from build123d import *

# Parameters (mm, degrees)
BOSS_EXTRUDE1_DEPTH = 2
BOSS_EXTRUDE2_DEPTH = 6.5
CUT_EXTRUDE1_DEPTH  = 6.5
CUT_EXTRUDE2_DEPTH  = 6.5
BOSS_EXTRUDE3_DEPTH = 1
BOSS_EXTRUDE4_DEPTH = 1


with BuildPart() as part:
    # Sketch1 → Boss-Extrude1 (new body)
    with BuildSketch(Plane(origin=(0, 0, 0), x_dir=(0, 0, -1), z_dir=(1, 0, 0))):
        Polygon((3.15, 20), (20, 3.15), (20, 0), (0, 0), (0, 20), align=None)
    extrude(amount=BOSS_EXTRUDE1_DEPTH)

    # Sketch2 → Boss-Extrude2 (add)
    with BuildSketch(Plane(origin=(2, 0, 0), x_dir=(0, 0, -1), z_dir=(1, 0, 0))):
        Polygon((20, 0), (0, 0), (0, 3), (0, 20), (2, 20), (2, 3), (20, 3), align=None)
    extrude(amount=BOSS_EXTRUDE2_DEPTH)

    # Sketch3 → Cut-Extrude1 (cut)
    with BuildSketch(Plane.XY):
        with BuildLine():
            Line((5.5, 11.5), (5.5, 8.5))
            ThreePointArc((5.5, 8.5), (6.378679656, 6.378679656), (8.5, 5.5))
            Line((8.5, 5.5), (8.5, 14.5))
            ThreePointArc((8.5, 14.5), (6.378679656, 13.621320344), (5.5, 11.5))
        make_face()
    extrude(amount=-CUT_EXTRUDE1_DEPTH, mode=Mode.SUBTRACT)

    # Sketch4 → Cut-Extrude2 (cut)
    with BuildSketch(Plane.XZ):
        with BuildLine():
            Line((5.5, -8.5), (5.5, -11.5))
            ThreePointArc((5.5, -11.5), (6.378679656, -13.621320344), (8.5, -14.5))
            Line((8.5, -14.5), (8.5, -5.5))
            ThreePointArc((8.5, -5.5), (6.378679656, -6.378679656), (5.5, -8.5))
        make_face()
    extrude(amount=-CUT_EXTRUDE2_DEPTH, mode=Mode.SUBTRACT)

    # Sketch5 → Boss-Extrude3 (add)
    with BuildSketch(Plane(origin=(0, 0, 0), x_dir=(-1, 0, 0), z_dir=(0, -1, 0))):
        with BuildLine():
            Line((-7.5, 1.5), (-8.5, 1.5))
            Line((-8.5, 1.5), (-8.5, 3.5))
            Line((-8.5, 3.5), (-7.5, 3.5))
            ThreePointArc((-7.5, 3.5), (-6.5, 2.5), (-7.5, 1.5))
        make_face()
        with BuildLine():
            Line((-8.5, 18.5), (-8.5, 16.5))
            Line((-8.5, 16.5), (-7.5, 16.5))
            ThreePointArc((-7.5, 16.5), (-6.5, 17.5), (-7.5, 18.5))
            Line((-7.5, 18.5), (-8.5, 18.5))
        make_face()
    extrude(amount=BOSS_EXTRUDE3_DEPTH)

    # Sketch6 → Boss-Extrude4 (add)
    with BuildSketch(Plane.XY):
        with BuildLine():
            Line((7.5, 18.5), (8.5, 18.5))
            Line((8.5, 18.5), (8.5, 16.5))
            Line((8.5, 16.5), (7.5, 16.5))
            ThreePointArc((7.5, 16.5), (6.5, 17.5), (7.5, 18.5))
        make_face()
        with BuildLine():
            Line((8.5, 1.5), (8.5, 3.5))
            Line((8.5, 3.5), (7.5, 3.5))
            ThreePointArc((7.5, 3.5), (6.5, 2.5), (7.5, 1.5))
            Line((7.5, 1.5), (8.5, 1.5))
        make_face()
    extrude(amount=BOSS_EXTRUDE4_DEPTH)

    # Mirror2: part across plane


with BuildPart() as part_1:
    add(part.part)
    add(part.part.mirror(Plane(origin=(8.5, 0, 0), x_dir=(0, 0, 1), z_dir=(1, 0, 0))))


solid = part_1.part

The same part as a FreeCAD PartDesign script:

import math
import FreeCAD as App
import Part
import Sketcher

doc = App.newDocument("Part")
params = doc.addObject("Spreadsheet::Sheet", "Params")
for row, (alias, value) in enumerate([
    ("sketch1_width", "20 mm"),
    ("sketch1_width2", "3.15 mm"),
    ("pad1_length", "2 mm"),
    ("sketch2_width", "3 mm"),
    ("sketch2_width2", "17 mm"),
    ("sketch2_height", "18 mm"),
    ("pad2_length", "6.5 mm"),
    ("sketch3_radius", "3 mm"),
    ("sketch3_height", "3 mm"),
    ("pocket1_length", "6.5 mm"),
    ("sketch4_radius", "3 mm"),
    ("sketch4_height", "3 mm"),
    ("pocket2_length", "6.5 mm"),
    ("sketch5_radius", "1 mm"),
    ("sketch5_width", "1 mm"),
    ("pad3_length", "1 mm"),
    ("sketch6_radius", "1 mm"),
    ("sketch6_width", "1 mm"),
    ("pad4_length", "1 mm"),
], start=1):
    params.set(f"A{row}", alias)
    params.set(f"B{row}", "=" + value)
    params.setAlias(f"B{row}", alias)

body = doc.addObject("PartDesign::Body", "Body")

# Sketch on YZ plane
sketch1 = body.newObject("Sketcher::SketchObject", "Sketch")
sketch1.AttachmentSupport = (doc.getObject("YZ_Plane"), [""])
sketch1.MapMode = "FlatFace"
sketch1.addGeometry([
    Part.LineSegment(App.Vector(3.1, -20, 0), App.Vector(20, -3.1, 0)),  # 0
    Part.LineSegment(App.Vector(20, -3.1, 0), App.Vector(20, 0, 0)),  # 1
    Part.LineSegment(App.Vector(20, 0, 0), App.Vector(0, 0, 0)),  # 2
    Part.LineSegment(App.Vector(0, 0, 0), App.Vector(0, -20, 0)),  # 3
    Part.LineSegment(App.Vector(0, -20, 0), App.Vector(3.1, -20, 0)),  # 4
], False)
sketch1.addConstraint([
    Sketcher.Constraint("Coincident", 0, 2, 1, 1),
    Sketcher.Constraint("Coincident", 1, 2, 2, 1),
    Sketcher.Constraint("Coincident", 2, 2, 3, 1),
    Sketcher.Constraint("Coincident", 3, 2, 4, 1),
    Sketcher.Constraint("Coincident", 4, 2, 0, 1),
    Sketcher.Constraint("Vertical", 1),
    Sketcher.Constraint("Horizontal", 2),
    Sketcher.Constraint("Vertical", 3),
    Sketcher.Constraint("Horizontal", 4),
    Sketcher.Constraint("Coincident", 2, 2, -1, 1),
    Sketcher.Constraint("Equal", 4, 1),
    Sketcher.Constraint("Equal", 2, 3),
    Sketcher.Constraint("DistanceX", 2, 2, 2, 1, 20.0),
    Sketcher.Constraint("DistanceX", 4, 1, 4, 2, 3.15),
])
sketch1.setExpression("Constraints[12]", "Params.sketch1_width")
sketch1.setExpression("Constraints[13]", "Params.sketch1_width2")
pad1 = body.newObject("PartDesign::Pad", "Pad")
pad1.Profile = sketch1
pad1.setExpression("Length", "Params.pad1_length")

# Sketch on YZ plane
sketch2 = body.newObject("Sketcher::SketchObject", "Sketch001")
sketch2.AttachmentSupport = (doc.getObject("YZ_Plane"), [""])
sketch2.MapMode = "FlatFace"
sketch2.AttachmentOffset = App.Placement(App.Vector(0, 0, 2), App.Rotation())
sketch2.addGeometry([
    Part.LineSegment(App.Vector(0, 0, 0), App.Vector(0, -20, 0)),  # 0
    Part.LineSegment(App.Vector(0, -20, 0), App.Vector(3, -20, 0)),  # 1
    Part.LineSegment(App.Vector(3, -20, 0), App.Vector(3, -2, 0)),  # 2
    Part.LineSegment(App.Vector(3, -2, 0), App.Vector(20, -2, 0)),  # 3
    Part.LineSegment(App.Vector(20, -2, 0), App.Vector(20, 0, 0)),  # 4
    Part.LineSegment(App.Vector(20, 0, 0), App.Vector(0, 0, 0)),  # 5
], False)
sketch2.addConstraint([
    Sketcher.Constraint("Coincident", 0, 2, 1, 1),
    Sketcher.Constraint("Coincident", 1, 2, 2, 1),
    Sketcher.Constraint("Coincident", 2, 2, 3, 1),
    Sketcher.Constraint("Coincident", 3, 2, 4, 1),
    Sketcher.Constraint("Coincident", 4, 2, 5, 1),
    Sketcher.Constraint("Coincident", 5, 2, 0, 1),
    Sketcher.Constraint("Vertical", 0),
    Sketcher.Constraint("Horizontal", 1),
    Sketcher.Constraint("Vertical", 2),
    Sketcher.Constraint("Horizontal", 3),
    Sketcher.Constraint("Vertical", 4),
    Sketcher.Constraint("Horizontal", 5),
    Sketcher.Constraint("Coincident", 5, 2, -1, 1),
    Sketcher.Constraint("Equal", 5, 0),
    Sketcher.Constraint("DistanceX", 1, 1, 1, 2, 3.0),
    Sketcher.Constraint("DistanceX", 3, 1, 3, 2, 17.0),
    Sketcher.Constraint("DistanceY", 2, 1, 2, 2, 18.0),
])
sketch2.setExpression("Constraints[14]", "Params.sketch2_width")
sketch2.setExpression("Constraints[15]", "Params.sketch2_width2")
sketch2.setExpression("Constraints[16]", "Params.sketch2_height")
pad2 = body.newObject("PartDesign::Pad", "Pad001")
pad2.Profile = sketch2
pad2.setExpression("Length", "Params.pad2_length")

# Sketch on XY plane
sketch3 = body.newObject("Sketcher::SketchObject", "Sketch002")
sketch3.AttachmentSupport = (doc.getObject("XY_Plane"), [""])
sketch3.MapMode = "FlatFace"
sketch3.addGeometry([
    Part.LineSegment(App.Vector(5.5, 11.5, 0), App.Vector(5.5, 8.5, 0)),
    Part.ArcOfCircle(Part.Circle(App.Vector(8.5, 8.5, 0), App.Vector(0, 0, 1), 3), math.radians(180), math.radians(270)),
    Part.LineSegment(App.Vector(8.5, 5.5, 0), App.Vector(8.5, 14.5, 0)),
    Part.ArcOfCircle(Part.Circle(App.Vector(8.5, 11.5, 0), App.Vector(0, 0, 1), 3), math.radians(90), math.radians(180)),
], False)
sketch3.addConstraint([
    Sketcher.Constraint("Tangent", 0, 2, 1, 1),
    Sketcher.Constraint("Coincident", 1, 2, 2, 1),
    Sketcher.Constraint("Coincident", 2, 2, 3, 1),
    Sketcher.Constraint("Tangent", 3, 2, 0, 1),
    Sketcher.Constraint("Vertical", 0),
    Sketcher.Constraint("Vertical", 2),
    Sketcher.Constraint("Equal", 1, 3),
    Sketcher.Constraint("Vertical", 3, 3, 1, 2),
    Sketcher.Constraint("Radius", 1, 3.0),
    Sketcher.Constraint("DistanceY", 0, 2, 0, 1, 3.0),
    Sketcher.Constraint("DistanceX", -1, 1, 1, 3, 8.5),
    Sketcher.Constraint("DistanceY", -1, 1, 1, 3, 8.5),
])
sketch3.setExpression("Constraints[8]", "Params.sketch3_radius")
sketch3.setExpression("Constraints[9]", "Params.sketch3_height")
pocket1 = body.newObject("PartDesign::Pocket", "Pocket")
pocket1.Profile = sketch3
pocket1.setExpression("Length", "Params.pocket1_length")

# Sketch on XZ plane
sketch4 = body.newObject("Sketcher::SketchObject", "Sketch003")
sketch4.AttachmentSupport = (doc.getObject("XZ_Plane"), [""])
sketch4.MapMode = "FlatFace"
sketch4.addGeometry([
    Part.LineSegment(App.Vector(5.5, -8.5, 0), App.Vector(5.5, -11.5, 0)),
    Part.ArcOfCircle(Part.Circle(App.Vector(8.5, -11.5, 0), App.Vector(0, 0, 1), 3), math.radians(180), math.radians(270)),
    Part.LineSegment(App.Vector(8.5, -14.5, 0), App.Vector(8.5, -5.5, 0)),
    Part.ArcOfCircle(Part.Circle(App.Vector(8.5, -8.5, 0), App.Vector(0, 0, 1), 3), math.radians(90), math.radians(180)),
], False)
sketch4.addConstraint([
    Sketcher.Constraint("Tangent", 0, 2, 1, 1),
    Sketcher.Constraint("Coincident", 1, 2, 2, 1),
    Sketcher.Constraint("Coincident", 2, 2, 3, 1),
    Sketcher.Constraint("Tangent", 3, 2, 0, 1),
    Sketcher.Constraint("Vertical", 0),
    Sketcher.Constraint("Vertical", 2),
    Sketcher.Constraint("Equal", 1, 3),
    Sketcher.Constraint("Vertical", 3, 3, 1, 2),
    Sketcher.Constraint("Radius", 1, 3.0),
    Sketcher.Constraint("DistanceY", 0, 2, 0, 1, 3.0),
    Sketcher.Constraint("DistanceX", -1, 1, 1, 3, 8.5),
    Sketcher.Constraint("DistanceY", 1, 3, -1, 1, 11.5),
])
sketch4.setExpression("Constraints[8]", "Params.sketch4_radius")
sketch4.setExpression("Constraints[9]", "Params.sketch4_height")
pocket2 = body.newObject("PartDesign::Pocket", "Pocket001")
pocket2.Profile = sketch4
pocket2.setExpression("Length", "Params.pocket2_length")

# Sketch on XZ plane
sketch5 = body.newObject("Sketcher::SketchObject", "Sketch004")
sketch5.AttachmentSupport = (doc.getObject("XZ_Plane"), [""])
sketch5.MapMode = "FlatFace"
sketch5.addGeometry([
    Part.LineSegment(App.Vector(8.5, -1.5, 0), App.Vector(7.5, -1.5, 0)),  # 0
    Part.ArcOfCircle(Part.Circle(App.Vector(7.5, -2.5, 0), App.Vector(0, 0, 1), 1), math.radians(90), math.radians(270)),  # 1
    Part.LineSegment(App.Vector(7.5, -3.5, 0), App.Vector(8.5, -3.5, 0)),  # 2
    Part.LineSegment(App.Vector(8.5, -3.5, 0), App.Vector(8.5, -1.5, 0)),  # 3
    Part.LineSegment(App.Vector(8.5, -18.5, 0), App.Vector(8.5, -16.5, 0)),  # 4
    Part.LineSegment(App.Vector(8.5, -16.5, 0), App.Vector(7.5, -16.5, 0)),  # 5
    Part.ArcOfCircle(Part.Circle(App.Vector(7.5, -17.5, 0), App.Vector(0, 0, 1), 1), math.radians(90), math.radians(270)),  # 6
    Part.LineSegment(App.Vector(7.5, -18.5, 0), App.Vector(8.5, -18.5, 0)),  # 7
], False)
sketch5.addConstraint([
    Sketcher.Constraint("Tangent", 0, 2, 1, 1),
    Sketcher.Constraint("Tangent", 1, 2, 2, 1),
    Sketcher.Constraint("Coincident", 2, 2, 3, 1),
    Sketcher.Constraint("Coincident", 3, 2, 0, 1),
    Sketcher.Constraint("Coincident", 4, 2, 5, 1),
    Sketcher.Constraint("Tangent", 5, 2, 6, 1),
    Sketcher.Constraint("Tangent", 6, 2, 7, 1),
    Sketcher.Constraint("Coincident", 7, 2, 4, 1),
    Sketcher.Constraint("Horizontal", 0),
    Sketcher.Constraint("Horizontal", 2),
    Sketcher.Constraint("Vertical", 3),
    Sketcher.Constraint("Vertical", 4),
    Sketcher.Constraint("Horizontal", 5),
    Sketcher.Constraint("Horizontal", 7),
    Sketcher.Constraint("Equal", 1, 6),
    Sketcher.Constraint("Vertical", 1, 3, 6, 3),
    Sketcher.Constraint("Vertical", 3, 2, 4, 2),
    Sketcher.Constraint("Radius", 1, 1.0),
    Sketcher.Constraint("DistanceX", 0, 2, 0, 1, 1.0),
    Sketcher.Constraint("DistanceY", 6, 3, 1, 3, 15.0),
    Sketcher.Constraint("DistanceX", -1, 1, 1, 3, 7.5),
    Sketcher.Constraint("DistanceY", 1, 3, -1, 1, 2.5),
])
sketch5.setExpression("Constraints[17]", "Params.sketch5_radius")
sketch5.setExpression("Constraints[18]", "Params.sketch5_width")
pad3 = body.newObject("PartDesign::Pad", "Pad002")
pad3.Profile = sketch5
pad3.setExpression("Length", "Params.pad3_length")

# Sketch on XY plane
sketch6 = body.newObject("Sketcher::SketchObject", "Sketch005")
sketch6.AttachmentSupport = (doc.getObject("XY_Plane"), [""])
sketch6.MapMode = "FlatFace"
sketch6.addGeometry([
    Part.LineSegment(App.Vector(8.5, 18.5, 0), App.Vector(7.5, 18.5, 0)),  # 0
    Part.ArcOfCircle(Part.Circle(App.Vector(7.5, 17.5, 0), App.Vector(0, 0, 1), 1), math.radians(90), math.radians(270)),  # 1
    Part.LineSegment(App.Vector(7.5, 16.5, 0), App.Vector(8.5, 16.5, 0)),  # 2
    Part.LineSegment(App.Vector(8.5, 16.5, 0), App.Vector(8.5, 18.5, 0)),  # 3
    Part.LineSegment(App.Vector(8.5, 1.5, 0), App.Vector(8.5, 3.5, 0)),  # 4
    Part.LineSegment(App.Vector(8.5, 3.5, 0), App.Vector(7.5, 3.5, 0)),  # 5
    Part.ArcOfCircle(Part.Circle(App.Vector(7.5, 2.5, 0), App.Vector(0, 0, 1), 1), math.radians(90), math.radians(270)),  # 6
    Part.LineSegment(App.Vector(7.5, 1.5, 0), App.Vector(8.5, 1.5, 0)),  # 7
], False)
sketch6.addConstraint([
    Sketcher.Constraint("Tangent", 0, 2, 1, 1),
    Sketcher.Constraint("Tangent", 1, 2, 2, 1),
    Sketcher.Constraint("Coincident", 2, 2, 3, 1),
    Sketcher.Constraint("Coincident", 3, 2, 0, 1),
    Sketcher.Constraint("Coincident", 4, 2, 5, 1),
    Sketcher.Constraint("Tangent", 5, 2, 6, 1),
    Sketcher.Constraint("Tangent", 6, 2, 7, 1),
    Sketcher.Constraint("Coincident", 7, 2, 4, 1),
    Sketcher.Constraint("Horizontal", 0),
    Sketcher.Constraint("Horizontal", 2),
    Sketcher.Constraint("Vertical", 3),
    Sketcher.Constraint("Vertical", 4),
    Sketcher.Constraint("Horizontal", 5),
    Sketcher.Constraint("Horizontal", 7),
    Sketcher.Constraint("Equal", 1, 6),
    Sketcher.Constraint("Vertical", 1, 3, 6, 3),
    Sketcher.Constraint("Vertical", 3, 2, 4, 2),
    Sketcher.Constraint("Radius", 1, 1.0),
    Sketcher.Constraint("DistanceX", 0, 2, 0, 1, 1.0),
    Sketcher.Constraint("DistanceY", 6, 3, 1, 3, 15.0),
    Sketcher.Constraint("DistanceX", -1, 1, 1, 3, 7.5),
    Sketcher.Constraint("DistanceY", -1, 1, 1, 3, 17.5),
])
sketch6.setExpression("Constraints[17]", "Params.sketch6_radius")
sketch6.setExpression("Constraints[18]", "Params.sketch6_width")
pad4 = body.newObject("PartDesign::Pad", "Pad003")
pad4.Profile = sketch6
pad4.setExpression("Length", "Params.pad4_length")
body2 = doc.addObject("PartDesign::Body", "Body001")
doc.recompute()

body2.BaseFeature = body
doc.recompute()

mirroring = doc.addObject("Part::Mirroring", "Mirroring")
mirroring.Source = body
mirroring.Base = App.Vector(8.5, 0, 0)
mirroring.Normal = App.Vector(1, 0, 0)
body3 = doc.addObject("PartDesign::Body", "Body002")
body3.BaseFeature = mirroring
boolean = body2.newObject("PartDesign::Boolean", "Boolean")
boolean.Type = "Fuse"
boolean.addObjects([body3])
doc.recompute()
mirroring.Visibility = False

doc.recompute()
